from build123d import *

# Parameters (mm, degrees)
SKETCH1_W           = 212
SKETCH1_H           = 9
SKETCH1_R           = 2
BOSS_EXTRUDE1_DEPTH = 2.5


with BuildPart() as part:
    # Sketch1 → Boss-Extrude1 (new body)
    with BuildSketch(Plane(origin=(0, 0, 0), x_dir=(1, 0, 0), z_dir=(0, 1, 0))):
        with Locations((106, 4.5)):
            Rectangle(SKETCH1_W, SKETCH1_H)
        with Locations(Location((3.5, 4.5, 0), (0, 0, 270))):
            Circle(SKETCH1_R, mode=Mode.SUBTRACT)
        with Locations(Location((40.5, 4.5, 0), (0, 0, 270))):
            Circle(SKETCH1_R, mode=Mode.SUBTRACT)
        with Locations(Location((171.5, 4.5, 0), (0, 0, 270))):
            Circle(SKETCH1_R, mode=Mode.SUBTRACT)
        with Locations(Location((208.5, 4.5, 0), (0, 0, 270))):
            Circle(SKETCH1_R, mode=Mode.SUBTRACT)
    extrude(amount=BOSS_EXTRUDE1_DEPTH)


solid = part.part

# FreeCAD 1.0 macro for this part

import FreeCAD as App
import Part
import Sketcher
Q = App.Units.Quantity

doc = App.newDocument("Part")
params = doc.addObject("Spreadsheet::Sheet", "Params")
for row, (alias, value) in enumerate([
    ("sketch1_diameter", "4 mm"),
    ("sketch1_width", "212 mm"),
    ("sketch1_height", "9 mm"),
    ("pad1_length", "2.5 mm"),
], start=1):
    params.set(f"A{row}", alias)
    params.set(f"B{row}", "=" + value)
    params.setAlias(f"B{row}", alias)

body = doc.addObject("PartDesign::Body", "Body")

sketch1 = doc.addObject("Sketcher::SketchObject", "Sketch")
body.addObject(sketch1)
sketch1.AttachmentSupport = (doc.XZ_Plane, [""])
sketch1.MapMode = "FlatFace"
sketch1.addGeometry([
    Part.LineSegment(App.Vector(0, -9, 0), App.Vector(0, 0, 0)),
    Part.LineSegment(App.Vector(0, 0, 0), App.Vector(212, 0, 0)),
    Part.LineSegment(App.Vector(212, 0, 0), App.Vector(212, -9, 0)),
    Part.LineSegment(App.Vector(212, -9, 0), App.Vector(0, -9, 0)),
    Part.Circle(App.Vector(3.5, -4.5, 0), App.Vector(0, 0, 1), 2),
    Part.Circle(App.Vector(40.5, -4.5, 0), App.Vector(0, 0, 1), 2),
    Part.Circle(App.Vector(171.5, -4.5, 0), App.Vector(0, 0, 1), 2),
    Part.Circle(App.Vector(208.5, -4.5, 0), App.Vector(0, 0, 1), 2),
], False)
sketch1.addConstraint([
    Sketcher.Constraint("Coincident", 0, 2, 1, 1),
    Sketcher.Constraint("Coincident", 1, 2, 2, 1),
    Sketcher.Constraint("Coincident", 2, 2, 3, 1),
    Sketcher.Constraint("Coincident", 3, 2, 0, 1),
    Sketcher.Constraint("Vertical", 0),
    Sketcher.Constraint("Horizontal", 1),
    Sketcher.Constraint("Vertical", 2),
    Sketcher.Constraint("Horizontal", 3),
    Sketcher.Constraint("Coincident", 0, 2, -1, 1),
    Sketcher.Constraint("Equal", 4, 5),
    Sketcher.Constraint("Equal", 5, 6),
    Sketcher.Constraint("Equal", 6, 7),
    Sketcher.Constraint("Horizontal", 4, 3, 5, 3),
    Sketcher.Constraint("Horizontal", 5, 3, 6, 3),
    Sketcher.Constraint("Horizontal", 6, 3, 7, 3),
    Sketcher.Constraint("Diameter", 4, Q("4 mm")),
    Sketcher.Constraint("DistanceX", 1, 1, 1, 2, Q("212 mm")),
    Sketcher.Constraint("DistanceY", 0, 1, 0, 2, Q("9 mm")),
    Sketcher.Constraint("DistanceX", 4, 3, 5, 3, Q("37 mm")),
    Sketcher.Constraint("DistanceX", 5, 3, 6, 3, Q("131 mm")),
    Sketcher.Constraint("DistanceX", 6, 3, 7, 3, Q("37 mm")),
    Sketcher.Constraint("DistanceX", -1, 1, 4, 3, Q("3.5 mm")),
    Sketcher.Constraint("DistanceY", 4, 3, -1, 1, Q("4.5 mm")),
])
sketch1.setExpression("Constraints[15]", "Params.sketch1_diameter")
sketch1.setExpression("Constraints[16]", "Params.sketch1_width")
sketch1.setExpression("Constraints[17]", "Params.sketch1_height")
pad1 = doc.addObject("PartDesign::Pad", "Pad")
body.addObject(pad1)
pad1.Profile = sketch1
pad1.setExpression("Length", "Params.pad1_length")
pad1.Reversed = True

doc.recompute()
